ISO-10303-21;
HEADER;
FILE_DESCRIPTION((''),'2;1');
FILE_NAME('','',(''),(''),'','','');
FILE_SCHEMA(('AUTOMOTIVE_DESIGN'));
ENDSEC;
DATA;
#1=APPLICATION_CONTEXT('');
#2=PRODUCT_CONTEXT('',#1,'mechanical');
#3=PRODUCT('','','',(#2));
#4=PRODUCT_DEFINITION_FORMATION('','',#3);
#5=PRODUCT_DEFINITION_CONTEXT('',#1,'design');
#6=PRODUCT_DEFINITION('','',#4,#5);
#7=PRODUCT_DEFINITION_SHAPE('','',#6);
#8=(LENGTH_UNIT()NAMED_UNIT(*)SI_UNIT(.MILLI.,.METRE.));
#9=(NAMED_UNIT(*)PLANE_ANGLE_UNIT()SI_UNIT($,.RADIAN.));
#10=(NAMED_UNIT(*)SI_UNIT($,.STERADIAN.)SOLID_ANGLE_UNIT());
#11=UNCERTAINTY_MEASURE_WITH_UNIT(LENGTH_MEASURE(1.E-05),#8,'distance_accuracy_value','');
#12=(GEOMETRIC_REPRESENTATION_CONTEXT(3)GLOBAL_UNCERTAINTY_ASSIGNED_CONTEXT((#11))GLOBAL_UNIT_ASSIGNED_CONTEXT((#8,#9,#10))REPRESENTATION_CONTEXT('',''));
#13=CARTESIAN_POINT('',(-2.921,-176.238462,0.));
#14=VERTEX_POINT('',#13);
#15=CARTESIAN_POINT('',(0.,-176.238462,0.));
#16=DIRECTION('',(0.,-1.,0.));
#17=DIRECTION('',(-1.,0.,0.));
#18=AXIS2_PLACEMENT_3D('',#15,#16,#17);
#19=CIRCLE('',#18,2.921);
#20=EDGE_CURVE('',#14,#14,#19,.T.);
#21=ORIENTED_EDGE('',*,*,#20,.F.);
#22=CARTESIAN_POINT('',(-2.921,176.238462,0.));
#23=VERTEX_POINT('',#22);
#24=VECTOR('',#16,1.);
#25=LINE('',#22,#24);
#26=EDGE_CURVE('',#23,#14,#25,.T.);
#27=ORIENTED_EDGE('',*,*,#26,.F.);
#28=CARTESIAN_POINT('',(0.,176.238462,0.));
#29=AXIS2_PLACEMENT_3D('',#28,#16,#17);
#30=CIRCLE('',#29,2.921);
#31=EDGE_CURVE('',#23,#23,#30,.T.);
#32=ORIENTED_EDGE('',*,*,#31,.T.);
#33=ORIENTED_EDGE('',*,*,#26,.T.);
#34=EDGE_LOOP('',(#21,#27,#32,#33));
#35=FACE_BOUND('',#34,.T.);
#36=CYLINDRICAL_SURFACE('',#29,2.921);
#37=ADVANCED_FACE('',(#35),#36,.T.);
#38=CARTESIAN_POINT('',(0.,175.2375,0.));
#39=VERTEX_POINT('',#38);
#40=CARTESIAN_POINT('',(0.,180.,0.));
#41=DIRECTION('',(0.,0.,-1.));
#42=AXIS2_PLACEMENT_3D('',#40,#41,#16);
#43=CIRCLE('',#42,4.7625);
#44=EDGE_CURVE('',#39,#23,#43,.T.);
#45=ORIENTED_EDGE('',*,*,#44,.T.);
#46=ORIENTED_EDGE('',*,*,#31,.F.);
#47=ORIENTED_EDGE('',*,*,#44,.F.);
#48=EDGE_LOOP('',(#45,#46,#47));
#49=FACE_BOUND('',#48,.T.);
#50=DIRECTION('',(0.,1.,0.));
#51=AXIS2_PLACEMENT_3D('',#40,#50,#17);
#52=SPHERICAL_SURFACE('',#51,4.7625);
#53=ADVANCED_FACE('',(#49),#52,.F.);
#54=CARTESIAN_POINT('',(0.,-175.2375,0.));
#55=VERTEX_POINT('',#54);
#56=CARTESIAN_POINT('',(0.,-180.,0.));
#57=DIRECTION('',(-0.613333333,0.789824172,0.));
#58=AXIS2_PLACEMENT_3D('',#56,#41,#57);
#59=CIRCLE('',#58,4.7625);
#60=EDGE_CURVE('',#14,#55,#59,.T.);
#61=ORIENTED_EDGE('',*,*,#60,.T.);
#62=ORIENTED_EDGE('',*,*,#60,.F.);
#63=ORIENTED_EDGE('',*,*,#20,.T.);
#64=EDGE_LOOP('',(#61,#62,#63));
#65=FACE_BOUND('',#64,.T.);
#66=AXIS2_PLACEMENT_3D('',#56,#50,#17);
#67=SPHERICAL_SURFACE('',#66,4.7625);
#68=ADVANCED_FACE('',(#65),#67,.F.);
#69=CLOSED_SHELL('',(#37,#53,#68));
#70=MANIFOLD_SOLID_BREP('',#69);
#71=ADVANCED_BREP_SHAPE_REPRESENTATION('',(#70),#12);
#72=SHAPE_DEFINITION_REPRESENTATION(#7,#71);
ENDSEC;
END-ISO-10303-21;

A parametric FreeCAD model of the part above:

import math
import FreeCAD as App
import Part
import Sketcher

V = App.Vector
Q = App.Units.Quantity

doc = App.newDocument("Part")
body = doc.addObject("PartDesign::Body", "Body")

# Sketch on XY plane
sketch1 = body.newObject("Sketcher::SketchObject", "Sketch")
sketch1.AttachmentSupport = (doc.getObject("XY_Plane"), [""])
sketch1.MapMode = "FlatFace"
sketch1.addGeometry(Part.ArcOfCircle(Part.Circle(V(0, 180, 0), V(0, 0, 1), 4.8), math.radians(-128), math.radians(-90)), False)
sketch1.addGeometry(Part.LineSegment(V(-2.9, 176.2, 0), V(-2.9, -176.2, 0)), False)
sketch1.addGeometry(Part.ArcOfCircle(Part.Circle(V(0, -180, 0), V(0, 0, 1), 4.8), math.radians(90), math.radians(128)), False)
sketch1.addGeometry(Part.LineSegment(V(0, -175.2, 0), V(0, 175.2, 0)), False)
sketch1.addConstraint(Sketcher.Constraint("Coincident", 0, 1, 1, 1))
sketch1.addConstraint(Sketcher.Constraint("Coincident", 1, 2, 2, 2))
sketch1.addConstraint(Sketcher.Constraint("Coincident", 2, 1, 3, 1))
sketch1.addConstraint(Sketcher.Constraint("Coincident", 3, 2, 0, 2))
sketch1.addConstraint(Sketcher.Constraint("Vertical", 1))
sketch1.addConstraint(Sketcher.Constraint("Vertical", 3))
sketch1.addConstraint(Sketcher.Constraint("Equal", 0, 2))
sketch1.addConstraint(Sketcher.Constraint("Symmetric", 0, 3, 2, 3, -1, 1))
sketch1.addConstraint(Sketcher.Constraint("PointOnObject", 0, 3, -2))
sketch1.addConstraint(Sketcher.Constraint("PointOnObject", 2, 1, -2))
sketch1.addConstraint(Sketcher.Constraint("Radius", 0, Q("0.1875 in")))
sketch1.addConstraint(Sketcher.Constraint("DistanceX", 0, 1, -1, 1, Q("0.115 in")))
sketch1.addConstraint(Sketcher.Constraint("DistanceY", 3, 1, 3, 2, Q("350.475 mm")))
revolution = body.newObject("PartDesign::Revolution", "Revolution")
revolution.Profile = sketch1
revolution.ReferenceAxis = (sketch1, ["V_Axis"])
revolution.Angle = 360

doc.recompute()
